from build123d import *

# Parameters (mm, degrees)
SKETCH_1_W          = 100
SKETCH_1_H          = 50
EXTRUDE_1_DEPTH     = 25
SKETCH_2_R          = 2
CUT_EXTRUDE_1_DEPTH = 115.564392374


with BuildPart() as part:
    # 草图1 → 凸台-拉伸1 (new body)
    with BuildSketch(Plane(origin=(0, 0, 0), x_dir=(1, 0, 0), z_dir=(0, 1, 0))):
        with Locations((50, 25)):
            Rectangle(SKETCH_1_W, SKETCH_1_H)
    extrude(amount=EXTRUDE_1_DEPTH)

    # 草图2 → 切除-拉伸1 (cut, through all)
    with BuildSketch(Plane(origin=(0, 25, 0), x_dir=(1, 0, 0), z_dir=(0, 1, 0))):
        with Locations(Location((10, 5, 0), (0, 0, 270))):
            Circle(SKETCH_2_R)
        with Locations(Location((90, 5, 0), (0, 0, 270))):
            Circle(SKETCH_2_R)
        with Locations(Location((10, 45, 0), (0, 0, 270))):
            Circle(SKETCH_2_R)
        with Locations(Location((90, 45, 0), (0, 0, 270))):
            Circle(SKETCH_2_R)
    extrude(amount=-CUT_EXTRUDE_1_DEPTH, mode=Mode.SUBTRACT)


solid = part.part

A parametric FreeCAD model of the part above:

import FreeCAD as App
import Part
import Sketcher
from FreeCAD import Vector
Q = App.Units.Quantity


def add_polygon(sketch, points):
    """Adds a closed chain of lines whose ends are joined by coincident constraints."""
    first, n = sketch.GeometryCount, len(points)
    for a, b in zip(points, points[1:] + points[:1]):
        sketch.addGeometry(Part.LineSegment(App.Vector(*a, 0), App.Vector(*b, 0)), False)
    for i in range(n):
        sketch.addConstraint(Sketcher.Constraint("Coincident", first + i, 2, first + (i + 1) % n, 1))

doc = App.newDocument("Part")
body = doc.addObject("PartDesign::Body", "Body")

# Sketch on XZ plane
sketch1 = doc.addObject("Sketcher::SketchObject", "Sketch")
body.addObject(sketch1)
sketch1.AttachmentSupport = (doc.XZ_Plane, [""])
sketch1.MapMode = "FlatFace"
add_polygon(sketch1, [(0, -50), (0, 0), (100, 0), (100, -50)])  # lines 0-3
sketch1.addConstraint(Sketcher.Constraint("Vertical", 0))
sketch1.addConstraint(Sketcher.Constraint("Horizontal", 1))
sketch1.addConstraint(Sketcher.Constraint("Vertical", 2))
sketch1.addConstraint(Sketcher.Constraint("Horizontal", 3))
sketch1.addConstraint(Sketcher.Constraint("Coincident", 0, 2, -1, 1))
sketch1.addConstraint(Sketcher.Constraint("DistanceX", 1, 1, 1, 2, Q("100 mm")))
sketch1.addConstraint(Sketcher.Constraint("DistanceY", 0, 1, 0, 2, Q("50 mm")))
pad1 = doc.addObject("PartDesign::Pad", "Pad")
body.addObject(pad1)
pad1.Profile = sketch1
pad1.Length = 25
pad1.Reversed = True

# Sketch on XZ plane
sketch2 = doc.addObject("Sketcher::SketchObject", "Sketch001")
body.addObject(sketch2)
sketch2.AttachmentSupport = (doc.XZ_Plane, [""])
sketch2.MapMode = "FlatFace"
sketch2.AttachmentOffset = App.Placement(Vector(0, 0, -25), App.Rotation())
sketch2.addGeometry(Part.Circle(Vector(10, -5, 0), Vector(0, 0, 1), 2), False)
sketch2.addGeometry(Part.Circle(Vector(90, -5, 0), Vector(0, 0, 1), 2), False)
sketch2.addGeometry(Part.Circle(Vector(10, -45, 0), Vector(0, 0, 1), 2), False)
sketch2.addGeometry(Part.Circle(Vector(90, -45, 0), Vector(0, 0, 1), 2), False)
sketch2.addConstraint(Sketcher.Constraint("Equal", 0, 1))
sketch2.addConstraint(Sketcher.Constraint("Equal", 1, 2))
sketch2.addConstraint(Sketcher.Constraint("Equal", 2, 3))
sketch2.addConstraint(Sketcher.Constraint("Horizontal", 0, 3, 1, 3))
sketch2.addConstraint(Sketcher.Constraint("Horizontal", 2, 3, 3, 3))
sketch2.addConstraint(Sketcher.Constraint("Vertical", 0, 3, 2, 3))
sketch2.addConstraint(Sketcher.Constraint("Vertical", 1, 3, 3, 3))
sketch2.addConstraint(Sketcher.Constraint("Diameter", 0, Q("4 mm")))
sketch2.addConstraint(Sketcher.Constraint("DistanceX", -1, 1, 0, 3, Q("10 mm")))
sketch2.addConstraint(Sketcher.Constraint("DistanceY", 0, 3, -1, 1, Q("5 mm")))
sketch2.addConstraint(Sketcher.Constraint("DistanceX", -1, 1, 1, 3, Q("90 mm")))
sketch2.addConstraint(Sketcher.Constraint("DistanceY", 2, 3, -1, 1, Q("45 mm")))
pocket1 = doc.addObject("PartDesign::Pocket", "Pocket")
body.addObject(pocket1)
pocket1.Profile = sketch2
pocket1.Type = "ThroughAll"
pocket1.Reversed = True

doc.recompute()
